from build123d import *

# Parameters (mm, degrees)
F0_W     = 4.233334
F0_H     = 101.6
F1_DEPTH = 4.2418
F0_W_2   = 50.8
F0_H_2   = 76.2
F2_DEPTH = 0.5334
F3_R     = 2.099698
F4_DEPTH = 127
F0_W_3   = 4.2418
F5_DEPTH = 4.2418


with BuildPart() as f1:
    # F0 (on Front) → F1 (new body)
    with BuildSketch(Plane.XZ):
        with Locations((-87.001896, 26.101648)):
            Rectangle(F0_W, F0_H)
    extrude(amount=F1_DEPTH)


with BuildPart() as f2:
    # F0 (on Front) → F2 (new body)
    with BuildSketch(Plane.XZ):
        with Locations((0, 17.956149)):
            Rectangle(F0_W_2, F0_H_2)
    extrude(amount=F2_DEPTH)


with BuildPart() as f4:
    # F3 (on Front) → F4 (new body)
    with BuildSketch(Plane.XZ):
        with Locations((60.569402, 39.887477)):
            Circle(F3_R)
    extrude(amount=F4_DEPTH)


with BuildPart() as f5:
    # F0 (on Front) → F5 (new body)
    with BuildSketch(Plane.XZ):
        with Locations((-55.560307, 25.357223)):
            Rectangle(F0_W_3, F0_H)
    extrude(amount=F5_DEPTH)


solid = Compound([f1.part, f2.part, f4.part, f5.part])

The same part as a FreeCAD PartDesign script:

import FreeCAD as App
import Part
import Sketcher
Q = App.Units.Quantity

doc = App.newDocument("Part")
body = doc.addObject("PartDesign::Body", "Body")

# Sketch on XZ plane
sketch1 = body.newObject("Sketcher::SketchObject", "Sketch")
sketch1.AttachmentSupport = (doc.getObject("XZ_Plane"), [""])
sketch1.MapMode = "FlatFace"
sketch1.addGeometry([
    Part.LineSegment(App.Vector(-89.1, 76.9, 0), App.Vector(-89.1, -24.7, 0)),
    Part.LineSegment(App.Vector(-89.1, -24.7, 0), App.Vector(-84.9, -24.7, 0)),
    Part.LineSegment(App.Vector(-84.9, -24.7, 0), App.Vector(-84.9, 76.9, 0)),
    Part.LineSegment(App.Vector(-84.9, 76.9, 0), App.Vector(-89.1, 76.9, 0)),
], False)
sketch1.addConstraint([
    Sketcher.Constraint("Coincident", 0, 2, 1, 1),
    Sketcher.Constraint("Coincident", 1, 2, 2, 1),
    Sketcher.Constraint("Coincident", 2, 2, 3, 1),
    Sketcher.Constraint("Coincident", 3, 2, 0, 1),
    Sketcher.Constraint("Vertical", 0),
    Sketcher.Constraint("Horizontal", 1),
    Sketcher.Constraint("Vertical", 2),
    Sketcher.Constraint("Horizontal", 3),
    Sketcher.Constraint("DistanceY", 0, 2, 0, 1, Q("4 in")),
    Sketcher.Constraint("DistanceX", 1, 1, 1, 2, 4.233334),
    Sketcher.Constraint("DistanceY", 0, 2, -1, 1, 24.698352),
    Sketcher.Constraint("DistanceX", 1, 2, -1, 1, 84.885229),
])
pad1 = body.newObject("PartDesign::Pad", "Pad")
pad1.Profile = sketch1
pad1.Length = Q("0.167 in")
body2 = doc.addObject("PartDesign::Body", "Body001")

# Sketch on XZ plane
sketch2 = body2.newObject("Sketcher::SketchObject", "Sketch001")
sketch2.AttachmentSupport = (doc.getObject("XZ_Plane001"), [""])
sketch2.MapMode = "FlatFace"
sketch2.addGeometry([
    Part.LineSegment(App.Vector(-25, 56, 0), App.Vector(-25, -20, 0)),
    Part.LineSegment(App.Vector(-25, -20, 0), App.Vector(25, -20, 0)),
    Part.LineSegment(App.Vector(25, -20, 0), App.Vector(25, 56, 0)),
    Part.LineSegment(App.Vector(25, 56, 0), App.Vector(-25, 56, 0)),
], False)
sketch2.addConstraint([
    Sketcher.Constraint("Coincident", 0, 2, 1, 1),
    Sketcher.Constraint("Coincident", 1, 2, 2, 1),
    Sketcher.Constraint("Coincident", 2, 2, 3, 1),
    Sketcher.Constraint("Coincident", 3, 2, 0, 1),
    Sketcher.Constraint("Vertical", 0),
    Sketcher.Constraint("Horizontal", 1),
    Sketcher.Constraint("Vertical", 2),
    Sketcher.Constraint("Horizontal", 3),
    Sketcher.Constraint("DistanceX", 1, 1, 1, 2, Q("2 in")),
    Sketcher.Constraint("DistanceY", 0, 2, 0, 1, Q("3 in")),
    Sketcher.Constraint("DistanceX", 0, 2, -1, 1, Q("1 in")),
    Sketcher.Constraint("DistanceY", 0, 2, -1, 1, 20.143851),
])
pad2 = body2.newObject("PartDesign::Pad", "Pad001")
pad2.Profile = sketch2
pad2.Length = Q("0.021 in")
body3 = doc.addObject("PartDesign::Body", "Body002")

# Sketch on XZ plane
sketch3 = body3.newObject("Sketcher::SketchObject", "Sketch002")
sketch3.AttachmentSupport = (doc.getObject("XZ_Plane002"), [""])
sketch3.MapMode = "FlatFace"
sketch3.addGeometry(Part.Circle(App.Vector(60.6, 39.9, 0), App.Vector(0, 0, 1), 2.1), False)
sketch3.addConstraint([
    Sketcher.Constraint("Diameter", 0, 4.199396),
    Sketcher.Constraint("DistanceX", -1, 1, 0, 3, 60.569402),
    Sketcher.Constraint("DistanceY", -1, 1, 0, 3, 39.887477),
])
pad3 = body3.newObject("PartDesign::Pad", "Pad002")
pad3.Profile = sketch3
pad3.Length = Q("5 in")
body4 = doc.addObject("PartDesign::Body", "Body003")

# Sketch on XZ plane
sketch4 = body4.newObject("Sketcher::SketchObject", "Sketch003")
sketch4.AttachmentSupport = (doc.getObject("XZ_Plane003"), [""])
sketch4.MapMode = "FlatFace"
sketch4.addGeometry([
    Part.LineSegment(App.Vector(-57.7, 76.2, 0), App.Vector(-57.7, -25.4, 0)),
    Part.LineSegment(App.Vector(-57.7, -25.4, 0), App.Vector(-53.4, -25.4, 0)),
    Part.LineSegment(App.Vector(-53.4, -25.4, 0), App.Vector(-53.4, 76.2, 0)),
    Part.LineSegment(App.Vector(-53.4, 76.2, 0), App.Vector(-57.7, 76.2, 0)),
], False)
sketch4.addConstraint([
    Sketcher.Constraint("Coincident", 0, 2, 1, 1),
    Sketcher.Constraint("Coincident", 1, 2, 2, 1),
    Sketcher.Constraint("Coincident", 2, 2, 3, 1),
    Sketcher.Constraint("Coincident", 3, 2, 0, 1),
    Sketcher.Constraint("Vertical", 0),
    Sketcher.Constraint("Horizontal", 1),
    Sketcher.Constraint("Vertical", 2),
    Sketcher.Constraint("Horizontal", 3),
    Sketcher.Constraint("DistanceY", 0, 2, 0, 1, Q("4 in")),
    Sketcher.Constraint("DistanceX", 1, 1, 1, 2, Q("0.167 in")),
    Sketcher.Constraint("DistanceX", 0, 2, -1, 1, 57.681207),
    Sketcher.Constraint("DistanceY", 0, 2, -1, 1, 25.442777),
])
pad4 = body4.newObject("PartDesign::Pad", "Pad003")
pad4.Profile = sketch4
pad4.Length = Q("0.167 in")

doc.recompute()
